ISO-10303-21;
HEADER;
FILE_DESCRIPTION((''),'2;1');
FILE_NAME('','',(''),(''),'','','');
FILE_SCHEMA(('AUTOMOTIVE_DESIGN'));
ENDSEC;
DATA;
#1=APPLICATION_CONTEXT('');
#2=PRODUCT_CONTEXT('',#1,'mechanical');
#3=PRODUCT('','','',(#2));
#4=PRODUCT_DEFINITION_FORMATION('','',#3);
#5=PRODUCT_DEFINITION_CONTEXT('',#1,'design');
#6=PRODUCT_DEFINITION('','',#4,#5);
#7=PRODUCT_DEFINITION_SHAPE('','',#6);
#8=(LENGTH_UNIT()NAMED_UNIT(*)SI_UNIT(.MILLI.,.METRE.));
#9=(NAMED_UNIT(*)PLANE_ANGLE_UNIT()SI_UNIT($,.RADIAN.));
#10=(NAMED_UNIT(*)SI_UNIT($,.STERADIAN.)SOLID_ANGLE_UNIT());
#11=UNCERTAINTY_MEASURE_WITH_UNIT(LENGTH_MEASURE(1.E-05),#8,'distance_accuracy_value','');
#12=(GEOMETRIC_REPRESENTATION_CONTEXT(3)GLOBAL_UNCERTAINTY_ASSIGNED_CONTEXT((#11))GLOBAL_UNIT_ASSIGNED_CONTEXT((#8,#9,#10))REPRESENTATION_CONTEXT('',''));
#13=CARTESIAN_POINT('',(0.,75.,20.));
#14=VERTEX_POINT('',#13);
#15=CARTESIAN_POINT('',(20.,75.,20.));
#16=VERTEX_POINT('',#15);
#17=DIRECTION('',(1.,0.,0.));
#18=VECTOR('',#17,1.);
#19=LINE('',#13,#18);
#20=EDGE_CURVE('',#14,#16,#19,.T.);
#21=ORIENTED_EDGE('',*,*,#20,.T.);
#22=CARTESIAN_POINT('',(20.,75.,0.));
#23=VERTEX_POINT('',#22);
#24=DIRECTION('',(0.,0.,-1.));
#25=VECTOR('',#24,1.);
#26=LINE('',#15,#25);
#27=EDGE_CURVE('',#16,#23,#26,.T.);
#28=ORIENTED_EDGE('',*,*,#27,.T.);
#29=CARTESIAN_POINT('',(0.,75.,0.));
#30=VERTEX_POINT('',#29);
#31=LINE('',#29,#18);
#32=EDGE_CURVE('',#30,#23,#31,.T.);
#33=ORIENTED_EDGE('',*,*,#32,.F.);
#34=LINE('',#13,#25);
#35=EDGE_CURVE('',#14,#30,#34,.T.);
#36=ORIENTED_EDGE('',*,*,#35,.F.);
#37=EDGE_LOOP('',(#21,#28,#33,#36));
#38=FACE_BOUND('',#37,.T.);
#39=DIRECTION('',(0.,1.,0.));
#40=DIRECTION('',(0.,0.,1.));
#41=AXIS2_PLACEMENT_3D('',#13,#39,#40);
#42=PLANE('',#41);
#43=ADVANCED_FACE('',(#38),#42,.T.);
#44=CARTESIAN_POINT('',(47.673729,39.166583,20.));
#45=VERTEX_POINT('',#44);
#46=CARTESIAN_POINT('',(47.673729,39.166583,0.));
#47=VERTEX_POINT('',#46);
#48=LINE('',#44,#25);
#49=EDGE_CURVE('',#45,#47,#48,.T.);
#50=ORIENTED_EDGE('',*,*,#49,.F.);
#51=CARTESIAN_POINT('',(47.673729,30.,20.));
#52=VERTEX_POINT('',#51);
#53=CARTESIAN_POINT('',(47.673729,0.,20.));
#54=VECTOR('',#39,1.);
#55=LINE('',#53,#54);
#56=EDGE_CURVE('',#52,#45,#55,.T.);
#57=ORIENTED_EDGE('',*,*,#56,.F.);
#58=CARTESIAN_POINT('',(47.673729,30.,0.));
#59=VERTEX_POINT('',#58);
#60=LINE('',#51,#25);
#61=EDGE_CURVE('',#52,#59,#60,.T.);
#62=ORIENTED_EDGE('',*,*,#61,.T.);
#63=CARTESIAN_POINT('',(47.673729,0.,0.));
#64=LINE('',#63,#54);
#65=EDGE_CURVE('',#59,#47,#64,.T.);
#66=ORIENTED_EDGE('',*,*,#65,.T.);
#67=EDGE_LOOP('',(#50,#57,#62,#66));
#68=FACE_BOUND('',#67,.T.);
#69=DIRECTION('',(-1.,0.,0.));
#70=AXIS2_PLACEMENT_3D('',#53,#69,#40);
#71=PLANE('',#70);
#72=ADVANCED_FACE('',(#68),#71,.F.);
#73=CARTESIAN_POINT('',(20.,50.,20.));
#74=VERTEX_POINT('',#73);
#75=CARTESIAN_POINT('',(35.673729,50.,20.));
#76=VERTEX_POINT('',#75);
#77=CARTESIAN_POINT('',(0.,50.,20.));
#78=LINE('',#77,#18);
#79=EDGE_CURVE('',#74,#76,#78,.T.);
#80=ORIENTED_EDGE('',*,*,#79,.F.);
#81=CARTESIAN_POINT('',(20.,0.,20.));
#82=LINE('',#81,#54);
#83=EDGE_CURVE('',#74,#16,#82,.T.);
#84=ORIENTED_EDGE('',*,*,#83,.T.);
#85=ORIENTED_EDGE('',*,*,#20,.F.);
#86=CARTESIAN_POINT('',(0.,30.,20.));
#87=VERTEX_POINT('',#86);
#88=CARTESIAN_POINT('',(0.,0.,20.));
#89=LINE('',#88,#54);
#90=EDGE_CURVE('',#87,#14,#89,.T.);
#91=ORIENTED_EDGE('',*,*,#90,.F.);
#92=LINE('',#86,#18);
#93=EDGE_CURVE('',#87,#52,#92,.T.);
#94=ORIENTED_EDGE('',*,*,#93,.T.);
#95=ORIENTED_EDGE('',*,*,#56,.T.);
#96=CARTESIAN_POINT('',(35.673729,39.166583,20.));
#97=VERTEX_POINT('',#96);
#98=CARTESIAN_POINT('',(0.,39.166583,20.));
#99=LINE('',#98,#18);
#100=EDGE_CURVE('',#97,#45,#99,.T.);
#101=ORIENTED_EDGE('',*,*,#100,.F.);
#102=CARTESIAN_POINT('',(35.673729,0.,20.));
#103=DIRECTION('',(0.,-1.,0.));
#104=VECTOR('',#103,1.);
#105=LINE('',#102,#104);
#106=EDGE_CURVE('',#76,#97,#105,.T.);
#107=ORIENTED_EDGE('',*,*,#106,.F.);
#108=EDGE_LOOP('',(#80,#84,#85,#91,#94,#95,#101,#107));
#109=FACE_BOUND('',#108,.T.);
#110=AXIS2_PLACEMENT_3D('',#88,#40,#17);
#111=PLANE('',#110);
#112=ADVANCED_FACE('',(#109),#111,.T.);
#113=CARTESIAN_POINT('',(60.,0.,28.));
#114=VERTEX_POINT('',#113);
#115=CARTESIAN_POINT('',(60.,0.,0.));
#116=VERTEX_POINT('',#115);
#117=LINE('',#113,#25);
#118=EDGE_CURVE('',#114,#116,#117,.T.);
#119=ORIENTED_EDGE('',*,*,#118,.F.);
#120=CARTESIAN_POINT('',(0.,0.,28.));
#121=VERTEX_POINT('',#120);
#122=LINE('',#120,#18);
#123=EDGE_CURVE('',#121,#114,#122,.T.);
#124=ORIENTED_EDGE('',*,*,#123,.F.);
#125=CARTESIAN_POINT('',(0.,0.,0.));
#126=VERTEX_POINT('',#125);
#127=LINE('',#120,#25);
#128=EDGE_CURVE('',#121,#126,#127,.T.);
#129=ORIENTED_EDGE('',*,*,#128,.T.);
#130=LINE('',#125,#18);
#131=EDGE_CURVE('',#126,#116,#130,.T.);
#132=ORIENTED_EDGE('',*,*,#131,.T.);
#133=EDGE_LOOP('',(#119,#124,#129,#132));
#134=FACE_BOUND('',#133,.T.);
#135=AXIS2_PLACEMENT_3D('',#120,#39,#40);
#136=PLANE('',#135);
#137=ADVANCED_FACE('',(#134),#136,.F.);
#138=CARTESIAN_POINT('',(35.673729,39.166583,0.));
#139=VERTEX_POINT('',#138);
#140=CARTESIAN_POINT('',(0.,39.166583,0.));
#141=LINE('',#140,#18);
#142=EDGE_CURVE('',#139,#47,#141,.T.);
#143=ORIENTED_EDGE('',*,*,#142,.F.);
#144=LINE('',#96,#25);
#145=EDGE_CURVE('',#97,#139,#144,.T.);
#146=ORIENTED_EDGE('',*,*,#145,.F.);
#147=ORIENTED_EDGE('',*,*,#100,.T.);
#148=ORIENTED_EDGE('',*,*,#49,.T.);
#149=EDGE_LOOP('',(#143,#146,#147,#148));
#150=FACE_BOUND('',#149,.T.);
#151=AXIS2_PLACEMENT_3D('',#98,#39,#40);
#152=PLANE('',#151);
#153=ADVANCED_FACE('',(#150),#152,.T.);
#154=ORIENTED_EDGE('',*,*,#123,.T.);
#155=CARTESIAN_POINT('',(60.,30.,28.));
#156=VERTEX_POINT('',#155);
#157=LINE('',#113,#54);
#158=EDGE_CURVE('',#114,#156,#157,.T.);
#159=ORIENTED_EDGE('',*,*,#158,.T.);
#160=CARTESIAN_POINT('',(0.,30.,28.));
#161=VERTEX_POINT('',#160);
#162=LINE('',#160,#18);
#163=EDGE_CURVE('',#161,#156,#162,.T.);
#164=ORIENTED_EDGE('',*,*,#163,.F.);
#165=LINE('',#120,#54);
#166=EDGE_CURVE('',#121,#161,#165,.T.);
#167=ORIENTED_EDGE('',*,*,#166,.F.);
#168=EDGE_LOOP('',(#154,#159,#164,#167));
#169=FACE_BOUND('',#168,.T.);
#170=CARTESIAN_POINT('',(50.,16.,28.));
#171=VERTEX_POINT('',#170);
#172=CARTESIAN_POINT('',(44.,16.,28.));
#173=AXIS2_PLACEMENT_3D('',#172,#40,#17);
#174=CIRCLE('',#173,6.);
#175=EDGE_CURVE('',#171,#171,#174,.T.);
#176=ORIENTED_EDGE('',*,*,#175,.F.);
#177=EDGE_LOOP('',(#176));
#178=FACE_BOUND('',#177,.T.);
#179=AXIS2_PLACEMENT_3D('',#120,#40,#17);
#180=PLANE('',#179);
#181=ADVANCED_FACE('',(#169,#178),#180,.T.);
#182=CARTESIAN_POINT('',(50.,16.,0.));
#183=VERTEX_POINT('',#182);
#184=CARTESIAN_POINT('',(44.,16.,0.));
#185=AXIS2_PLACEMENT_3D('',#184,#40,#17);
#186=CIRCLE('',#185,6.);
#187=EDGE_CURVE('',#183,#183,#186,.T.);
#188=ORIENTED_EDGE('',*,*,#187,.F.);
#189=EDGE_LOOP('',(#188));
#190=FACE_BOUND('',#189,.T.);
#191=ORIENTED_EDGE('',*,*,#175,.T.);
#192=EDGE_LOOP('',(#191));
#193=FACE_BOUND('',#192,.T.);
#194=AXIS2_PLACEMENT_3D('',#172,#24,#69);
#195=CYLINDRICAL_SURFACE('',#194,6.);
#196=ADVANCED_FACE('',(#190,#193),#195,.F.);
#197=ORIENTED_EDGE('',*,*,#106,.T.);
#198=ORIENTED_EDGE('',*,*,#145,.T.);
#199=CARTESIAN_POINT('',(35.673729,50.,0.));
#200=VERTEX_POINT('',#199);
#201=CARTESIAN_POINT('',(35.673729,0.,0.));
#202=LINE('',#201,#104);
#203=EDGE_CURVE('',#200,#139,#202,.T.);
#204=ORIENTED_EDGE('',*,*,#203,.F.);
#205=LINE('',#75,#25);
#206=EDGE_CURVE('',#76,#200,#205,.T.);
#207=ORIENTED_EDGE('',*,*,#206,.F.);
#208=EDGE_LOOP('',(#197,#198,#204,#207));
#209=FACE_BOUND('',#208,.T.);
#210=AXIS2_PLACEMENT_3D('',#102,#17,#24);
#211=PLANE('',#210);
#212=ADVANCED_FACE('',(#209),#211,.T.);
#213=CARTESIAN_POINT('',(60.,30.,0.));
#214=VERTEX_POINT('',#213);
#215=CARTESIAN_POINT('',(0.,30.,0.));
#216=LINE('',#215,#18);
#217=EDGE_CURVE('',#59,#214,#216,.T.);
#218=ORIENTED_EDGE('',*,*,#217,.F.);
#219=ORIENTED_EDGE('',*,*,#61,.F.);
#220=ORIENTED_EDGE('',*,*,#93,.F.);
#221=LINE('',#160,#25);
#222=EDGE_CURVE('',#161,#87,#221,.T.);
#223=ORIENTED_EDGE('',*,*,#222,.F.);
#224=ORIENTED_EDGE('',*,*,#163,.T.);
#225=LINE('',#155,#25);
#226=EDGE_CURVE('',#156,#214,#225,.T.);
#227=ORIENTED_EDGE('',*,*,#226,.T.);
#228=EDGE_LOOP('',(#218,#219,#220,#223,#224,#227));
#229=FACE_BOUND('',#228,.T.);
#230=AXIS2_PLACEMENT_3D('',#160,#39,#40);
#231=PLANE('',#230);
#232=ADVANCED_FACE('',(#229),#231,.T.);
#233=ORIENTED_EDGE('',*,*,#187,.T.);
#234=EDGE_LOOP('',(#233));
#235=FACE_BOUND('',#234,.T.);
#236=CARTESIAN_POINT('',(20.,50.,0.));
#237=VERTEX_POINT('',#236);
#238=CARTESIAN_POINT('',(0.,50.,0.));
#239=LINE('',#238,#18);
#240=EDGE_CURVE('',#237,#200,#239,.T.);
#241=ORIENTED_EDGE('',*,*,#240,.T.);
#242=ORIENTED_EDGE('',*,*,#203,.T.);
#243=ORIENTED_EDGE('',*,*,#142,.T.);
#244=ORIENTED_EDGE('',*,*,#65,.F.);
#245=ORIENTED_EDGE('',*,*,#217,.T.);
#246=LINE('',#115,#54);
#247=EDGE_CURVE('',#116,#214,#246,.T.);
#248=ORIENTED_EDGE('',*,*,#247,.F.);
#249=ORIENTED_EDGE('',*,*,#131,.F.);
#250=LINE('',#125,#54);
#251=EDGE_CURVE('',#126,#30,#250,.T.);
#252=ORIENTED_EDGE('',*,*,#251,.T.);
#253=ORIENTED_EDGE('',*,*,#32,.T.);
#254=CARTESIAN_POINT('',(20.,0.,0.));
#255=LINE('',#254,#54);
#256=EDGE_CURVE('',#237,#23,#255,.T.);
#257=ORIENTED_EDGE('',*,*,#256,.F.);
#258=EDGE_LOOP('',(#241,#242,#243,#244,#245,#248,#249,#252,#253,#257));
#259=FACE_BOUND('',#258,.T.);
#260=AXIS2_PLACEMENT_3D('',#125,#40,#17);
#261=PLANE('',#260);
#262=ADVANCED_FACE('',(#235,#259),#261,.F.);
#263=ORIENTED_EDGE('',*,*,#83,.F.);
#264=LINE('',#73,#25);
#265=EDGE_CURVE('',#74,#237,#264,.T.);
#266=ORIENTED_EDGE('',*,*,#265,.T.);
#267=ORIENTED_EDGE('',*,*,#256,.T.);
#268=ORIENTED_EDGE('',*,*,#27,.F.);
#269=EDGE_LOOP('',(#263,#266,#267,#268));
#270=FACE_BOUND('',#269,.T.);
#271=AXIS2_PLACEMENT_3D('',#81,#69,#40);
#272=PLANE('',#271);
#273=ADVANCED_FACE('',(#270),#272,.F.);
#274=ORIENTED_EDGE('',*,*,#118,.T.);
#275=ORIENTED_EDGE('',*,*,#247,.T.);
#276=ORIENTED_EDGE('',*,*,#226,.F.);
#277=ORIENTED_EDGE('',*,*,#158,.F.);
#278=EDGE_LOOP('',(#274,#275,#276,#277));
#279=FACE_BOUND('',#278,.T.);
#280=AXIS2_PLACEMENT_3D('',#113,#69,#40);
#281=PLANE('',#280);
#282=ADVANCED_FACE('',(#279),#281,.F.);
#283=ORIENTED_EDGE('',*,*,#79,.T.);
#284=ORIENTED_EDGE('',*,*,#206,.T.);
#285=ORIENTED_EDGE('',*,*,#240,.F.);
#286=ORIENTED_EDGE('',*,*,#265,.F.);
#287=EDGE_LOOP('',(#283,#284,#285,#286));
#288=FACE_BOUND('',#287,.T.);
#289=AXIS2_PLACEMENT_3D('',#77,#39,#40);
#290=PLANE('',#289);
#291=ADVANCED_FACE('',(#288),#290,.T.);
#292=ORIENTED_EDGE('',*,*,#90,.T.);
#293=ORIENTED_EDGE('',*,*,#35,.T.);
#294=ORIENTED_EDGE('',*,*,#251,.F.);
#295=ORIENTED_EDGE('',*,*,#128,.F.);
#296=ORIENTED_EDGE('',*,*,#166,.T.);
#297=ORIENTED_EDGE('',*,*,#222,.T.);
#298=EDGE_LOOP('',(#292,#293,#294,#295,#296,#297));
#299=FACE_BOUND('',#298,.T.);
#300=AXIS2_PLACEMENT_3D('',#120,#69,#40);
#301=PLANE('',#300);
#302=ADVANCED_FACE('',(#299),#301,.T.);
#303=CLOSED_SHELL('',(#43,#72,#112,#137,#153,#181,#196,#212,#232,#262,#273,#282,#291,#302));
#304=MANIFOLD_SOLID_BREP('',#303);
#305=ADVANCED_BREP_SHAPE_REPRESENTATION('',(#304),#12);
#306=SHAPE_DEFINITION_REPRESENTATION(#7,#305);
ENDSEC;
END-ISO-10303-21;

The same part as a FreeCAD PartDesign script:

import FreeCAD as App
import Part
import Sketcher

V = App.Vector
Q = App.Units.Quantity

doc = App.newDocument("Part")
body = doc.addObject("PartDesign::Body", "Body")

# Sketch on XY plane
sketch1 = doc.addObject("Sketcher::SketchObject", "Sketch")
body.addObject(sketch1)
sketch1.AttachmentSupport = (doc.XY_Plane, [""])
sketch1.MapMode = "FlatFace"
sketch1.addGeometry([
    Part.LineSegment(V(0, 30, 0), V(0, 0, 0)),  # 0
    Part.LineSegment(V(0, 0, 0), V(60, 0, 0)),  # 1
    Part.LineSegment(V(60, 0, 0), V(60, 30, 0)),  # 2
    Part.LineSegment(V(60, 30, 0), V(0, 30, 0)),  # 3
    Part.Circle(V(44, 16, 0), V(0, 0, 1), 6),  # 4
], False)
sketch1.addConstraint([
    Sketcher.Constraint("Coincident", 0, 2, 1, 1),
    Sketcher.Constraint("Coincident", 1, 2, 2, 1),
    Sketcher.Constraint("Coincident", 2, 2, 3, 1),
    Sketcher.Constraint("Coincident", 3, 2, 0, 1),
    Sketcher.Constraint("Vertical", 0),
    Sketcher.Constraint("Horizontal", 1),
    Sketcher.Constraint("Vertical", 2),
    Sketcher.Constraint("Horizontal", 3),
    Sketcher.Constraint("Coincident", 0, 2, -1, 1),
    Sketcher.Constraint("Diameter", 4, Q("12 mm")),
    Sketcher.Constraint("DistanceX", 1, 1, 1, 2, Q("60 mm")),
    Sketcher.Constraint("DistanceY", 0, 2, 0, 1, Q("30 mm")),
    Sketcher.Constraint("DistanceX", -1, 1, 4, 3, Q("44 mm")),
    Sketcher.Constraint("DistanceY", -1, 1, 4, 3, Q("16 mm")),
])
pad1 = doc.addObject("PartDesign::Pad", "Pad")
body.addObject(pad1)
pad1.Profile = sketch1
pad1.Length = 28

# Sketch on XY plane
sketch2 = doc.addObject("Sketcher::SketchObject", "Sketch001")
body.addObject(sketch2)
sketch2.AttachmentSupport = (doc.XY_Plane, [""])
sketch2.MapMode = "FlatFace"
sketch2.addGeometry([
    Part.LineSegment(V(36, 39, 0), V(36, 50, 0)),  # 0
    Part.LineSegment(V(36, 50, 0), V(20, 50, 0)),  # 1
    Part.LineSegment(V(20, 50, 0), V(20, 75, 0)),  # 2
    Part.LineSegment(V(20, 75, 0), V(0, 75, 0)),  # 3
    Part.LineSegment(V(0, 75, 0), V(0, 30, 0)),  # 4
    Part.LineSegment(V(0, 30, 0), V(48, 30, 0)),  # 5
    Part.LineSegment(V(48, 30, 0), V(48, 39, 0)),  # 6
    Part.LineSegment(V(48, 39, 0), V(36, 39, 0)),  # 7
], False)
sketch2.addConstraint([
    Sketcher.Constraint("Coincident", 0, 2, 1, 1),
    Sketcher.Constraint("Coincident", 1, 2, 2, 1),
    Sketcher.Constraint("Coincident", 2, 2, 3, 1),
    Sketcher.Constraint("Coincident", 3, 2, 4, 1),
    Sketcher.Constraint("Coincident", 4, 2, 5, 1),
    Sketcher.Constraint("Coincident", 5, 2, 6, 1),
    Sketcher.Constraint("Coincident", 6, 2, 7, 1),
    Sketcher.Constraint("Coincident", 7, 2, 0, 1),
    Sketcher.Constraint("Vertical", 0),
    Sketcher.Constraint("Horizontal", 1),
    Sketcher.Constraint("Vertical", 2),
    Sketcher.Constraint("Horizontal", 3),
    Sketcher.Constraint("Vertical", 4),
    Sketcher.Constraint("Horizontal", 5),
    Sketcher.Constraint("Vertical", 6),
    Sketcher.Constraint("Horizontal", 7),
    Sketcher.Constraint("PointOnObject", 3, 2, -2),
    Sketcher.Constraint("DistanceX", 3, 2, 3, 1, Q("20 mm")),
    Sketcher.Constraint("DistanceX", 7, 2, 7, 1, Q("12 mm")),
    Sketcher.Constraint("DistanceY", 2, 1, 2, 2, Q("25 mm")),
    Sketcher.Constraint("DistanceY", 4, 2, 4, 1, Q("45 mm")),
    Sketcher.Constraint("DistanceY", -1, 1, 0, 2, Q("50 mm")),
    Sketcher.Constraint("DistanceX", 1, 2, 1, 1, Q("15.673729 mm")),
    Sketcher.Constraint("DistanceY", 0, 1, 0, 2, Q("10.833417 mm")),
])
pad2 = doc.addObject("PartDesign::Pad", "Pad001")
body.addObject(pad2)
pad2.Profile = sketch2
pad2.Length = 20

doc.recompute()
